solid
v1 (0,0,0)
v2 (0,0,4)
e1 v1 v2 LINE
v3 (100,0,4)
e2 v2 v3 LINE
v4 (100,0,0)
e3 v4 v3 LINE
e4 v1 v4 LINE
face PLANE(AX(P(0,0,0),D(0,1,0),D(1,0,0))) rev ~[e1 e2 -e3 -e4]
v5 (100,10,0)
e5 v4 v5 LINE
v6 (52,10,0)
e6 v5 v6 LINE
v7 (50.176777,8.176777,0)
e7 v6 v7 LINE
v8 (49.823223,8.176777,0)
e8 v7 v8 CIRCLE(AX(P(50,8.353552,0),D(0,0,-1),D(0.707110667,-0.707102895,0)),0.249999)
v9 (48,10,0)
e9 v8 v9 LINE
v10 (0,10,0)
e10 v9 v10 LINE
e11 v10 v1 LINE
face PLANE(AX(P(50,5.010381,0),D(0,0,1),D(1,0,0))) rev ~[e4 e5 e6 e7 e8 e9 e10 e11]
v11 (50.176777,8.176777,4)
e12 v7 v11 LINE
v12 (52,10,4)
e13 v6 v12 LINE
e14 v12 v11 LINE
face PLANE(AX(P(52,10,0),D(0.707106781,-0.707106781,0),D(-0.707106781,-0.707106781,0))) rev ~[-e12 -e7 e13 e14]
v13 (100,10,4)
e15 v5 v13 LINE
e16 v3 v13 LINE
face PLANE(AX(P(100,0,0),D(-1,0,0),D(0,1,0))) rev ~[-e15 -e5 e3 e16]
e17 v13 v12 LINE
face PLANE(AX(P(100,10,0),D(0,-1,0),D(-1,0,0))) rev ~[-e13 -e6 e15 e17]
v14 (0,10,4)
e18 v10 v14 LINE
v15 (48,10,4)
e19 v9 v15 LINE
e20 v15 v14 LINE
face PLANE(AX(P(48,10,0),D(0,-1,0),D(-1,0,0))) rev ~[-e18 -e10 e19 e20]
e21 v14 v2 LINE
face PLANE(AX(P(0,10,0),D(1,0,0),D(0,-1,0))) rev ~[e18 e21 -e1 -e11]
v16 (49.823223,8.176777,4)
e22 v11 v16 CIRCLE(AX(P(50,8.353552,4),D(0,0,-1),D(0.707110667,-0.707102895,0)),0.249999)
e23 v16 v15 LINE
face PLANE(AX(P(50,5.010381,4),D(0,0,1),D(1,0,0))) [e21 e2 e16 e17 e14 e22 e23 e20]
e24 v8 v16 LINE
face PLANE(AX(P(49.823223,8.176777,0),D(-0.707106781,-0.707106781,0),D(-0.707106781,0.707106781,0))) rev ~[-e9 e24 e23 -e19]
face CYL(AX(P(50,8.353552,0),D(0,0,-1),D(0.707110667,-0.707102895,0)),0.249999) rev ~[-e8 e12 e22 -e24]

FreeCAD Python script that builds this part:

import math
import FreeCAD as App
import Part
import Sketcher

V = App.Vector
Q = App.Units.Quantity

doc = App.newDocument("Part")
params = doc.addObject("Spreadsheet::Sheet", "Params")
for row, (alias, value) in enumerate([
    ("sketch1_width", "100 mm"),
    ("sketch1_width2", "48 mm"),
    ("sketch1_height", "10 mm"),
    ("sketch1_radius", "0.249999 mm"),
    ("pad1_length", "4 mm"),
], start=1):
    params.set(f"A{row}", alias)
    params.set(f"B{row}", "=" + value)
    params.setAlias(f"B{row}", alias)

body = doc.addObject("PartDesign::Body", "Body")

sketch1 = body.newObject("Sketcher::SketchObject", "Sketch")
sketch1.AttachmentSupport = (doc.getObject("XY_Plane"), [""])
sketch1.MapMode = "FlatFace"
sketch1.addGeometry([
    Part.LineSegment(V(0, 10, 0), V(0, 0, 0)),
    Part.LineSegment(V(0, 0, 0), V(100, 0, 0)),
    Part.LineSegment(V(100, 0, 0), V(100, 10, 0)),
    Part.LineSegment(V(100, 10, 0), V(52, 10, 0)),
    Part.LineSegment(V(52, 10, 0), V(50.176777, 8.176777, 0)),
    Part.ArcOfCircle(Part.Circle(V(50, 8.353552, 0), V(0, 0, 1), 0.249999), math.radians(-135.000315), math.radians(-44.999685)),
    Part.LineSegment(V(49.823223, 8.176777, 0), V(48, 10, 0)),
    Part.LineSegment(V(48, 10, 0), V(0, 10, 0)),
], False)
sketch1.addConstraint([
    Sketcher.Constraint("Coincident", 0, 2, 1, 1),
    Sketcher.Constraint("Coincident", 1, 2, 2, 1),
    Sketcher.Constraint("Coincident", 2, 2, 3, 1),
    Sketcher.Constraint("Coincident", 3, 2, 4, 1),
    Sketcher.Constraint("Coincident", 4, 2, 5, 2),
    Sketcher.Constraint("Coincident", 5, 1, 6, 1),
    Sketcher.Constraint("Coincident", 6, 2, 7, 1),
    Sketcher.Constraint("Coincident", 7, 2, 0, 1),
    Sketcher.Constraint("Vertical", 0),
    Sketcher.Constraint("Horizontal", 1),
    Sketcher.Constraint("Vertical", 2),
    Sketcher.Constraint("Horizontal", 3),
    Sketcher.Constraint("Horizontal", 7),
    Sketcher.Constraint("Coincident", 0, 2, -1, 1),
    Sketcher.Constraint("Perpendicular", 4, 6),
    Sketcher.Constraint("Horizontal", 4, 2, 5, 1),
    Sketcher.Constraint("Horizontal", 3, 2, 6, 2),
    Sketcher.Constraint("Equal", 3, 7),
    Sketcher.Constraint("Equal", 4, 6),
    Sketcher.Constraint("DistanceX", 1, 1, 1, 2, Q("100 mm")),
    Sketcher.Constraint("DistanceX", 3, 2, 3, 1, Q("48 mm")),
    Sketcher.Constraint("DistanceY", 0, 2, 0, 1, Q("10 mm")),
    Sketcher.Constraint("Radius", 5, Q("0.249999 mm")),
    Sketcher.Constraint("Distance", 4, Q("2.578427 mm")),
])
sketch1.setExpression("Constraints[19]", "Params.sketch1_width")
sketch1.setExpression("Constraints[20]", "Params.sketch1_width2")
sketch1.setExpression("Constraints[21]", "Params.sketch1_height")
sketch1.setExpression("Constraints[22]", "Params.sketch1_radius")
pad1 = body.newObject("PartDesign::Pad", "Pad")
pad1.Profile = sketch1
pad1.setExpression("Length", "Params.pad1_length")

doc.recompute()
